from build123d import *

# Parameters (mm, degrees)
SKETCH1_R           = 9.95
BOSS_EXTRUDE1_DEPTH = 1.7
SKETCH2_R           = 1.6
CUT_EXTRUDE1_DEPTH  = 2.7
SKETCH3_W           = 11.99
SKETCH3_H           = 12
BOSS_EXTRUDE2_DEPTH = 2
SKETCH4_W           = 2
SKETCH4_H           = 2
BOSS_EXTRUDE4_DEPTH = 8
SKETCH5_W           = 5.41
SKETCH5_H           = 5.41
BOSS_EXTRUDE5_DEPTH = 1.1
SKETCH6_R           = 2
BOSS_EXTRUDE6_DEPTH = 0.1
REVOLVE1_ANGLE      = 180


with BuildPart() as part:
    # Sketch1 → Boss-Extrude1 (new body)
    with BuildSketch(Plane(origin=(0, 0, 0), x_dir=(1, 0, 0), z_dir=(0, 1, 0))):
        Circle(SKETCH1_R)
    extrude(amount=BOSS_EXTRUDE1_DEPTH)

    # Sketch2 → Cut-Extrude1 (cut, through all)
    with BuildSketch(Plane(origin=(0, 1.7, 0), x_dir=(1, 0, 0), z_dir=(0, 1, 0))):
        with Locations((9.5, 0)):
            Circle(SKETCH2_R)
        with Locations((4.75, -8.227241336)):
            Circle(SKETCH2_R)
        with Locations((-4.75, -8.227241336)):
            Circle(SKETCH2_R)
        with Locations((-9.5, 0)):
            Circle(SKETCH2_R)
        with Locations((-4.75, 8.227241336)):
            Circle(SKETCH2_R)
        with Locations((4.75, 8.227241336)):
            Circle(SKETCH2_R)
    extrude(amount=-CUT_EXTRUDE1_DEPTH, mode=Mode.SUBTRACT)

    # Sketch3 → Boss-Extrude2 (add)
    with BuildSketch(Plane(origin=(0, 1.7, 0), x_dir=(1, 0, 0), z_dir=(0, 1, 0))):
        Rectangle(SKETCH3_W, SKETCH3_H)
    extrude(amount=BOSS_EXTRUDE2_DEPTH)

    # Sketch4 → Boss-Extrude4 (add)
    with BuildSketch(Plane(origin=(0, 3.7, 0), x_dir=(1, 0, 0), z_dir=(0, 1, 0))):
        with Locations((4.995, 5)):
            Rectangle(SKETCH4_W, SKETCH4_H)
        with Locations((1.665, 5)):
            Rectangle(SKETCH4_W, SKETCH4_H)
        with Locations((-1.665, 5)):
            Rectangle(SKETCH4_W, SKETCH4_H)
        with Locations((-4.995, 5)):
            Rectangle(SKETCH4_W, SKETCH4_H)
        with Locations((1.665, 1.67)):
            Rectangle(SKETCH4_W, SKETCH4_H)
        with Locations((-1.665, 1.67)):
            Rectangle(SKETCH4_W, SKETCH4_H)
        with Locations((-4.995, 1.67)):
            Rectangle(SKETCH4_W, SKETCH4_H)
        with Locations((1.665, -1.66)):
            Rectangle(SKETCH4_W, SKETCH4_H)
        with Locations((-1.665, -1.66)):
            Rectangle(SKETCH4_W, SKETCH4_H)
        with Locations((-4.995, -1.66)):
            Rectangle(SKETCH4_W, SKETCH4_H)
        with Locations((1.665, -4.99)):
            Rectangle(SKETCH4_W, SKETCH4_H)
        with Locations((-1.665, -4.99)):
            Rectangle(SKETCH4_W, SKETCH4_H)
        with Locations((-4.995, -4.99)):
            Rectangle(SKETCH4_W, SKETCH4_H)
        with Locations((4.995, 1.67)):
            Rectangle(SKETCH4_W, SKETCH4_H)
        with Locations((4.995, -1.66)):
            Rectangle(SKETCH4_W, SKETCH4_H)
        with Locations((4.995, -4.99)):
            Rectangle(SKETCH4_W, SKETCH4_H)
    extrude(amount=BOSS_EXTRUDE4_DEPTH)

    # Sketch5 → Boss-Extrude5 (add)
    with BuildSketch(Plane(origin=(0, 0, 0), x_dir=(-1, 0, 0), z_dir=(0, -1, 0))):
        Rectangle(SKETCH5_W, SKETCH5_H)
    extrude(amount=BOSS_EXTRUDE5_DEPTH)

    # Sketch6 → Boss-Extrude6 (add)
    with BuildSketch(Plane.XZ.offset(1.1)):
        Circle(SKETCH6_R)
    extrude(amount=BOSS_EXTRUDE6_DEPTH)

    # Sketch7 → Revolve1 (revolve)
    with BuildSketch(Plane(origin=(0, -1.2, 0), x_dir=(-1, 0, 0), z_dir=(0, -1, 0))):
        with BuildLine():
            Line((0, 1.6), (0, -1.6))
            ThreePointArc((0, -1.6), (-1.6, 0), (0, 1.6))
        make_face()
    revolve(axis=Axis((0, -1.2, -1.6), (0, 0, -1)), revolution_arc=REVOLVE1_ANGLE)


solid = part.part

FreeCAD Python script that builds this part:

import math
import FreeCAD as App
import Part
import Sketcher
Q = App.Units.Quantity

doc = App.newDocument("Part")
body = doc.addObject("PartDesign::Body", "Body")

# Sketch on XZ plane
sketch1 = doc.addObject("Sketcher::SketchObject", "Sketch")
body.addObject(sketch1)
sketch1.AttachmentSupport = (doc.XZ_Plane, [""])
sketch1.MapMode = "FlatFace"
sketch1.addGeometry(Part.Circle(App.Vector(0, 0, 0), App.Vector(0, 0, 1), 9.95), False)
sketch1.addConstraint([
    Sketcher.Constraint("Coincident", 0, 3, -1, 1),
    Sketcher.Constraint("Diameter", 0, Q("19.9 mm")),
])
pad1 = doc.addObject("PartDesign::Pad", "Pad")
body.addObject(pad1)
pad1.Profile = sketch1
pad1.Length = 1.7
pad1.Reversed = True

# Sketch on XZ plane
sketch2 = doc.addObject("Sketcher::SketchObject", "Sketch001")
body.addObject(sketch2)
sketch2.AttachmentSupport = (doc.XZ_Plane, [""])
sketch2.MapMode = "FlatFace"
sketch2.AttachmentOffset = App.Placement(App.Vector(0, 0, -1.7), App.Rotation())
sketch2.addGeometry([
    Part.Circle(App.Vector(9.5, 0, 0), App.Vector(0, 0, 1), 1.6),  # 0
    Part.Circle(App.Vector(4.75, 8.227241, 0), App.Vector(0, 0, 1), 1.6),  # 1
    Part.Circle(App.Vector(-4.75, 8.227241, 0), App.Vector(0, 0, 1), 1.6),  # 2
    Part.Circle(App.Vector(-9.5, 0, 0), App.Vector(0, 0, 1), 1.6),  # 3
    Part.Circle(App.Vector(-4.75, -8.227241, 0), App.Vector(0, 0, 1), 1.6),  # 4
    Part.Circle(App.Vector(4.75, -8.227241, 0), App.Vector(0, 0, 1), 1.6),  # 5
], False)
sketch2.addConstraint([
    Sketcher.Constraint("Equal", 0, 1),
    Sketcher.Constraint("Equal", 1, 2),
    Sketcher.Constraint("Equal", 2, 3),
    Sketcher.Constraint("Equal", 3, 4),
    Sketcher.Constraint("Equal", 4, 5),
    Sketcher.Constraint("Symmetric", 0, 3, 3, 3, -1, 1),
    Sketcher.Constraint("Symmetric", 1, 3, 4, 3, -1, 1),
    Sketcher.Constraint("Symmetric", 2, 3, 5, 3, -1, 1),
    Sketcher.Constraint("Symmetric", 1, 3, 2, 3, -2),
    Sketcher.Constraint("PointOnObject", 0, 3, -1),
    Sketcher.Constraint("Diameter", 0, Q("3.2 mm")),
    Sketcher.Constraint("DistanceX", 3, 3, 0, 3, Q("19 mm")),
    Sketcher.Constraint("DistanceX", 2, 3, 1, 3, Q("9.5 mm")),
    Sketcher.Constraint("DistanceY", -1, 1, 1, 3, Q("8.227241 mm")),
])
pocket1 = doc.addObject("PartDesign::Pocket", "Pocket")
body.addObject(pocket1)
pocket1.Profile = sketch2
pocket1.Type = "ThroughAll"
pocket1.Reversed = True

# Sketch on XZ plane
sketch3 = doc.addObject("Sketcher::SketchObject", "Sketch002")
body.addObject(sketch3)
sketch3.AttachmentSupport = (doc.XZ_Plane, [""])
sketch3.MapMode = "FlatFace"
sketch3.AttachmentOffset = App.Placement(App.Vector(0, 0, -1.7), App.Rotation())
sketch3.addGeometry([
    Part.LineSegment(App.Vector(-5.995, -6, 0), App.Vector(-5.995, 6, 0)),
    Part.LineSegment(App.Vector(-5.995, 6, 0), App.Vector(5.995, 6, 0)),
    Part.LineSegment(App.Vector(5.995, 6, 0), App.Vector(5.995, -6, 0)),
    Part.LineSegment(App.Vector(5.995, -6, 0), App.Vector(-5.995, -6, 0)),
], False)
sketch3.addConstraint([
    Sketcher.Constraint("Coincident", 0, 2, 1, 1),
    Sketcher.Constraint("Coincident", 1, 2, 2, 1),
    Sketcher.Constraint("Coincident", 2, 2, 3, 1),
    Sketcher.Constraint("Coincident", 3, 2, 0, 1),
    Sketcher.Constraint("Vertical", 0),
    Sketcher.Constraint("Horizontal", 1),
    Sketcher.Constraint("Vertical", 2),
    Sketcher.Constraint("Horizontal", 3),
    Sketcher.Constraint("Symmetric", 0, 2, 2, 2, -1, 1),
    Sketcher.Constraint("DistanceY", 0, 1, 0, 2, Q("12 mm")),
    Sketcher.Constraint("DistanceX", 1, 1, 1, 2, Q("11.99 mm")),
])
pad2 = doc.addObject("PartDesign::Pad", "Pad001")
body.addObject(pad2)
pad2.Profile = sketch3
pad2.Length = 2
pad2.Reversed = True

# Sketch on XZ plane
sketch4 = doc.addObject("Sketcher::SketchObject", "Sketch003")
body.addObject(sketch4)
sketch4.AttachmentSupport = (doc.XZ_Plane, [""])
sketch4.MapMode = "FlatFace"
sketch4.AttachmentOffset = App.Placement(App.Vector(0, 0, -3.7), App.Rotation())
sketch4.addGeometry([
    Part.LineSegment(App.Vector(3.995, -6, 0), App.Vector(3.995, -4, 0)),  # 0
    Part.LineSegment(App.Vector(3.995, -4, 0), App.Vector(5.995, -4, 0)),  # 1
    Part.LineSegment(App.Vector(5.995, -4, 0), App.Vector(5.995, -6, 0)),  # 2
    Part.LineSegment(App.Vector(5.995, -6, 0), App.Vector(3.995, -6, 0)),  # 3
    Part.LineSegment(App.Vector(0.665, -6, 0), App.Vector(0.665, -4, 0)),  # 4
    Part.LineSegment(App.Vector(0.665, -4, 0), App.Vector(2.665, -4, 0)),  # 5
    Part.LineSegment(App.Vector(2.665, -4, 0), App.Vector(2.665, -6, 0)),  # 6
    Part.LineSegment(App.Vector(2.665, -6, 0), App.Vector(0.665, -6, 0)),  # 7
    Part.LineSegment(App.Vector(-2.665, -6, 0), App.Vector(-2.665, -4, 0)),  # 8
    Part.LineSegment(App.Vector(-2.665, -4, 0), App.Vector(-0.665, -4, 0)),  # 9
    Part.LineSegment(App.Vector(-0.665, -4, 0), App.Vector(-0.665, -6, 0)),  # 10
    Part.LineSegment(App.Vector(-0.665, -6, 0), App.Vector(-2.665, -6, 0)),  # 11
    Part.LineSegment(App.Vector(-5.995, -6, 0), App.Vector(-5.995, -4, 0)),  # 12
    Part.LineSegment(App.Vector(-5.995, -4, 0), App.Vector(-3.995, -4, 0)),  # 13
    Part.LineSegment(App.Vector(-3.995, -4, 0), App.Vector(-3.995, -6, 0)),  # 14
    Part.LineSegment(App.Vector(-3.995, -6, 0), App.Vector(-5.995, -6, 0)),  # 15
    Part.LineSegment(App.Vector(0.665, -2.67, 0), App.Vector(0.665, -0.67, 0)),  # 16
    Part.LineSegment(App.Vector(0.665, -0.67, 0), App.Vector(2.665, -0.67, 0)),  # 17
    Part.LineSegment(App.Vector(2.665, -0.67, 0), App.Vector(2.665, -2.67, 0)),  # 18
    Part.LineSegment(App.Vector(2.665, -2.67, 0), App.Vector(0.665, -2.67, 0)),  # 19
    Part.LineSegment(App.Vector(-2.665, -2.67, 0), App.Vector(-2.665, -0.67, 0)),  # 20
    Part.LineSegment(App.Vector(-2.665, -0.67, 0), App.Vector(-0.665, -0.67, 0)),  # 21
    Part.LineSegment(App.Vector(-0.665, -0.67, 0), App.Vector(-0.665, -2.67, 0)),  # 22
    Part.LineSegment(App.Vector(-0.665, -2.67, 0), App.Vector(-2.665, -2.67, 0)),  # 23
    Part.LineSegment(App.Vector(-5.995, -2.67, 0), App.Vector(-5.995, -0.67, 0)),  # 24
    Part.LineSegment(App.Vector(-5.995, -0.67, 0), App.Vector(-3.995, -0.67, 0)),  # 25
    Part.LineSegment(App.Vector(-3.995, -0.67, 0), App.Vector(-3.995, -2.67, 0)),  # 26
    Part.LineSegment(App.Vector(-3.995, -2.67, 0), App.Vector(-5.995, -2.67, 0)),  # 27
    Part.LineSegment(App.Vector(0.665, 0.66, 0), App.Vector(0.665, 2.66, 0)),  # 28
    Part.LineSegment(App.Vector(0.665, 2.66, 0), App.Vector(2.665, 2.66, 0)),  # 29
    Part.LineSegment(App.Vector(2.665, 2.66, 0), App.Vector(2.665, 0.66, 0)),  # 30
    Part.LineSegment(App.Vector(2.665, 0.66, 0), App.Vector(0.665, 0.66, 0)),  # 31
    Part.LineSegment(App.Vector(-2.665, 0.66, 0), App.Vector(-2.665, 2.66, 0)),  # 32
    Part.LineSegment(App.Vector(-2.665, 2.66, 0), App.Vector(-0.665, 2.66, 0)),  # 33
    Part.LineSegment(App.Vector(-0.665, 2.66, 0), App.Vector(-0.665, 0.66, 0)),  # 34
    Part.LineSegment(App.Vector(-0.665, 0.66, 0), App.Vector(-2.665, 0.66, 0)),  # 35
    Part.LineSegment(App.Vector(-5.995, 0.66, 0), App.Vector(-5.995, 2.66, 0)),  # 36
    Part.LineSegment(App.Vector(-5.995, 2.66, 0), App.Vector(-3.995, 2.66, 0)),  # 37
    Part.LineSegment(App.Vector(-3.995, 2.66, 0), App.Vector(-3.995, 0.66, 0)),  # 38
    Part.LineSegment(App.Vector(-3.995, 0.66, 0), App.Vector(-5.995, 0.66, 0)),  # 39
    Part.LineSegment(App.Vector(0.665, 3.99, 0), App.Vector(0.665, 5.99, 0)),  # 40
    Part.LineSegment(App.Vector(0.665, 5.99, 0), App.Vector(2.665, 5.99, 0)),  # 41
    Part.LineSegment(App.Vector(2.665, 5.99, 0), App.Vector(2.665, 3.99, 0)),  # 42
    Part.LineSegment(App.Vector(2.665, 3.99, 0), App.Vector(0.665, 3.99, 0)),  # 43
    Part.LineSegment(App.Vector(-2.665, 3.99, 0), App.Vector(-2.665, 5.99, 0)),  # 44
    Part.LineSegment(App.Vector(-2.665, 5.99, 0), App.Vector(-0.665, 5.99, 0)),  # 45
    Part.LineSegment(App.Vector(-0.665, 5.99, 0), App.Vector(-0.665, 3.99, 0)),  # 46
    Part.LineSegment(App.Vector(-0.665, 3.99, 0), App.Vector(-2.665, 3.99, 0)),  # 47
    Part.LineSegment(App.Vector(-5.995, 3.99, 0), App.Vector(-5.995, 5.99, 0)),  # 48
    Part.LineSegment(App.Vector(-5.995, 5.99, 0), App.Vector(-3.995, 5.99, 0)),  # 49
    Part.LineSegment(App.Vector(-3.995, 5.99, 0), App.Vector(-3.995, 3.99, 0)),  # 50
    Part.LineSegment(App.Vector(-3.995, 3.99, 0), App.Vector(-5.995, 3.99, 0)),  # 51
    Part.LineSegment(App.Vector(3.995, -2.67, 0), App.Vector(3.995, -0.67, 0)),  # 52
    Part.LineSegment(App.Vector(3.995, -0.67, 0), App.Vector(5.995, -0.67, 0)),  # 53
    Part.LineSegment(App.Vector(5.995, -0.67, 0), App.Vector(5.995, -2.67, 0)),  # 54
    Part.LineSegment(App.Vector(5.995, -2.67, 0), App.Vector(3.995, -2.67, 0)),  # 55
    Part.LineSegment(App.Vector(3.995, 0.66, 0), App.Vector(3.995, 2.66, 0)),  # 56
    Part.LineSegment(App.Vector(3.995, 2.66, 0), App.Vector(5.995, 2.66, 0)),  # 57
    Part.LineSegment(App.Vector(5.995, 2.66, 0), App.Vector(5.995, 0.66, 0)),  # 58
    Part.LineSegment(App.Vector(5.995, 0.66, 0), App.Vector(3.995, 0.66, 0)),  # 59
    Part.LineSegment(App.Vector(3.995, 3.99, 0), App.Vector(3.995, 5.99, 0)),  # 60
    Part.LineSegment(App.Vector(3.995, 5.99, 0), App.Vector(5.995, 5.99, 0)),  # 61
    Part.LineSegment(App.Vector(5.995, 5.99, 0), App.Vector(5.995, 3.99, 0)),  # 62
    Part.LineSegment(App.Vector(5.995, 3.99, 0), App.Vector(3.995, 3.99, 0)),  # 63
], False)
sketch4.addConstraint([
    Sketcher.Constraint("Coincident", 0, 2, 1, 1),
    Sketcher.Constraint("Coincident", 1, 2, 2, 1),
    Sketcher.Constraint("Coincident", 2, 2, 3, 1),
    Sketcher.Constraint("Coincident", 3, 2, 0, 1),
    Sketcher.Constraint("Coincident", 4, 2, 5, 1),
    Sketcher.Constraint("Coincident", 5, 2, 6, 1),
    Sketcher.Constraint("Coincident", 6, 2, 7, 1),
    Sketcher.Constraint("Coincident", 7, 2, 4, 1),
    Sketcher.Constraint("Coincident", 8, 2, 9, 1),
    Sketcher.Constraint("Coincident", 9, 2, 10, 1),
    Sketcher.Constraint("Coincident", 10, 2, 11, 1),
    Sketcher.Constraint("Coincident", 11, 2, 8, 1),
    Sketcher.Constraint("Coincident", 12, 2, 13, 1),
    Sketcher.Constraint("Coincident", 13, 2, 14, 1),
    Sketcher.Constraint("Coincident", 14, 2, 15, 1),
    Sketcher.Constraint("Coincident", 15, 2, 12, 1),
    Sketcher.Constraint("Coincident", 16, 2, 17, 1),
    Sketcher.Constraint("Coincident", 17, 2, 18, 1),
    Sketcher.Constraint("Coincident", 18, 2, 19, 1),
    Sketcher.Constraint("Coincident", 19, 2, 16, 1),
    Sketcher.Constraint("Coincident", 20, 2, 21, 1),
    Sketcher.Constraint("Coincident", 21, 2, 22, 1),
    Sketcher.Constraint("Coincident", 22, 2, 23, 1),
    Sketcher.Constraint("Coincident", 23, 2, 20, 1),
    Sketcher.Constraint("Coincident", 24, 2, 25, 1),
    Sketcher.Constraint("Coincident", 25, 2, 26, 1),
    Sketcher.Constraint("Coincident", 26, 2, 27, 1),
    Sketcher.Constraint("Coincident", 27, 2, 24, 1),
    Sketcher.Constraint("Coincident", 28, 2, 29, 1),
    Sketcher.Constraint("Coincident", 29, 2, 30, 1),
    Sketcher.Constraint("Coincident", 30, 2, 31, 1),
    Sketcher.Constraint("Coincident", 31, 2, 28, 1),
    Sketcher.Constraint("Coincident", 32, 2, 33, 1),
    Sketcher.Constraint("Coincident", 33, 2, 34, 1),
    Sketcher.Constraint("Coincident", 34, 2, 35, 1),
    Sketcher.Constraint("Coincident", 35, 2, 32, 1),
    Sketcher.Constraint("Coincident", 36, 2, 37, 1),
    Sketcher.Constraint("Coincident", 37, 2, 38, 1),
    Sketcher.Constraint("Coincident", 38, 2, 39, 1),
    Sketcher.Constraint("Coincident", 39, 2, 36, 1),
    Sketcher.Constraint("Coincident", 40, 2, 41, 1),
    Sketcher.Constraint("Coincident", 41, 2, 42, 1),
    Sketcher.Constraint("Coincident", 42, 2, 43, 1),
    Sketcher.Constraint("Coincident", 43, 2, 40, 1),
    Sketcher.Constraint("Coincident", 44, 2, 45, 1),
    Sketcher.Constraint("Coincident", 45, 2, 46, 1),
    Sketcher.Constraint("Coincident", 46, 2, 47, 1),
    Sketcher.Constraint("Coincident", 47, 2, 44, 1),
    Sketcher.Constraint("Coincident", 48, 2, 49, 1),
    Sketcher.Constraint("Coincident", 49, 2, 50, 1),
    Sketcher.Constraint("Coincident", 50, 2, 51, 1),
    Sketcher.Constraint("Coincident", 51, 2, 48, 1),
    Sketcher.Constraint("Coincident", 52, 2, 53, 1),
    Sketcher.Constraint("Coincident", 53, 2, 54, 1),
    Sketcher.Constraint("Coincident", 54, 2, 55, 1),
    Sketcher.Constraint("Coincident", 55, 2, 52, 1),
    Sketcher.Constraint("Coincident", 56, 2, 57, 1),
    Sketcher.Constraint("Coincident", 57, 2, 58, 1),
    Sketcher.Constraint("Coincident", 58, 2, 59, 1),
    Sketcher.Constraint("Coincident", 59, 2, 56, 1),
    Sketcher.Constraint("Coincident", 60, 2, 61, 1),
    Sketcher.Constraint("Coincident", 61, 2, 62, 1),
    Sketcher.Constraint("Coincident", 62, 2, 63, 1),
    Sketcher.Constraint("Coincident", 63, 2, 60, 1),
    Sketcher.Constraint("Vertical", 0),
    Sketcher.Constraint("Horizontal", 1),
    Sketcher.Constraint("Vertical", 2),
    Sketcher.Constraint("Horizontal", 3),
    Sketcher.Constraint("Vertical", 4),
    Sketcher.Constraint("Horizontal", 5),
    Sketcher.Constraint("Vertical", 6),
    Sketcher.Constraint("Horizontal", 7),
    Sketcher.Constraint("Vertical", 8),
    Sketcher.Constraint("Horizontal", 9),
    Sketcher.Constraint("Vertical", 10),
    Sketcher.Constraint("Horizontal", 11),
    Sketcher.Constraint("Vertical", 12),
    Sketcher.Constraint("Horizontal", 13),
    Sketcher.Constraint("Vertical", 14),
    Sketcher.Constraint("Horizontal", 15),
    Sketcher.Constraint("Vertical", 16),
    Sketcher.Constraint("Horizontal", 17),
    Sketcher.Constraint("Vertical", 18),
    Sketcher.Constraint("Horizontal", 19),
    Sketcher.Constraint("Vertical", 20),
    Sketcher.Constraint("Horizontal", 21),
    Sketcher.Constraint("Vertical", 22),
    Sketcher.Constraint("Horizontal", 23),
    Sketcher.Constraint("Vertical", 24),
    Sketcher.Constraint("Horizontal", 25),
    Sketcher.Constraint("Vertical", 26),
    Sketcher.Constraint("Horizontal", 27),
    Sketcher.Constraint("Vertical", 28),
    Sketcher.Constraint("Horizontal", 29),
    Sketcher.Constraint("Vertical", 30),
    Sketcher.Constraint("Horizontal", 31),
    Sketcher.Constraint("Vertical", 32),
    Sketcher.Constraint("Horizontal", 33),
    Sketcher.Constraint("Vertical", 34),
    Sketcher.Constraint("Horizontal", 35),
    Sketcher.Constraint("Vertical", 36),
    Sketcher.Constraint("Horizontal", 37),
    Sketcher.Constraint("Vertical", 38),
    Sketcher.Constraint("Horizontal", 39),
    Sketcher.Constraint("Vertical", 40),
    Sketcher.Constraint("Horizontal", 41),
    Sketcher.Constraint("Vertical", 42),
    Sketcher.Constraint("Horizontal", 43),
    Sketcher.Constraint("Vertical", 44),
    Sketcher.Constraint("Horizontal", 45),
    Sketcher.Constraint("Vertical", 46),
    Sketcher.Constraint("Horizontal", 47),
    Sketcher.Constraint("Vertical", 48),
    Sketcher.Constraint("Horizontal", 49),
    Sketcher.Constraint("Vertical", 50),
    Sketcher.Constraint("Horizontal", 51),
    Sketcher.Constraint("Vertical", 52),
    Sketcher.Constraint("Horizontal", 53),
    Sketcher.Constraint("Vertical", 54),
    Sketcher.Constraint("Horizontal", 55),
    Sketcher.Constraint("Vertical", 56),
    Sketcher.Constraint("Horizontal", 57),
    Sketcher.Constraint("Vertical", 58),
    Sketcher.Constraint("Horizontal", 59),
    Sketcher.Constraint("Vertical", 60),
    Sketcher.Constraint("Horizontal", 61),
    Sketcher.Constraint("Vertical", 62),
    Sketcher.Constraint("Horizontal", 63),
    Sketcher.Constraint("Symmetric", 5, 2, 8, 2, -2),
    Sketcher.Constraint("Symmetric", 7, 2, 10, 2, -2),
    Sketcher.Constraint("Symmetric", 1, 2, 12, 2, -2),
    Sketcher.Constraint("Symmetric", 3, 2, 14, 2, -2),
    Sketcher.Constraint("Symmetric", 17, 2, 20, 2, -2),
    Sketcher.Constraint("Symmetric", 19, 2, 22, 2, -2),
    Sketcher.Constraint("Symmetric", 29, 2, 32, 2, -2),
    Sketcher.Constraint("Symmetric", 31, 2, 34, 2, -2),
    Sketcher.Constraint("Symmetric", 41, 2, 44, 2, -2),
    Sketcher.Constraint("Symmetric", 43, 2, 46, 2, -2),
    Sketcher.Constraint("Symmetric", 25, 2, 52, 2, -2),
    Sketcher.Constraint("Symmetric", 27, 2, 54, 2, -2),
    Sketcher.Constraint("Symmetric", 37, 2, 56, 2, -2),
    Sketcher.Constraint("Symmetric", 39, 2, 58, 2, -2),
    Sketcher.Constraint("Symmetric", 49, 2, 60, 2, -2),
    Sketcher.Constraint("Symmetric", 51, 2, 62, 2, -2),
    Sketcher.Constraint("Horizontal", 1, 2, 4, 2),
    Sketcher.Constraint("Horizontal", 3, 2, 6, 2),
    Sketcher.Constraint("Horizontal", 21, 2, 24, 2),
    Sketcher.Constraint("Horizontal", 23, 2, 26, 2),
    Sketcher.Constraint("Horizontal", 33, 2, 36, 2),
    Sketcher.Constraint("Horizontal", 35, 2, 38, 2),
    Sketcher.Constraint("Horizontal", 45, 2, 48, 2),
    Sketcher.Constraint("Horizontal", 47, 2, 50, 2),
    Sketcher.Constraint("Vertical", 7, 2, 16, 2),
    Sketcher.Constraint("Vertical", 6, 2, 17, 2),
    Sketcher.Constraint("Vertical", 15, 2, 24, 2),
    Sketcher.Constraint("Vertical", 14, 2, 25, 2),
    Sketcher.Constraint("Vertical", 19, 2, 28, 2),
    Sketcher.Constraint("Vertical", 18, 2, 29, 2),
    Sketcher.Constraint("Vertical", 27, 2, 36, 2),
    Sketcher.Constraint("Vertical", 26, 2, 37, 2),
    Sketcher.Constraint("Vertical", 31, 2, 40, 2),
    Sketcher.Constraint("Vertical", 30, 2, 41, 2),
    Sketcher.Constraint("Vertical", 39, 2, 48, 2),
    Sketcher.Constraint("Vertical", 38, 2, 49, 2),
    Sketcher.Constraint("Equal", 3, 5),
    Sketcher.Constraint("Equal", 63, 0),
    Sketcher.Constraint("Equal", 14, 16),
    Sketcher.Constraint("Equal", 26, 28),
    Sketcher.Constraint("Equal", 38, 40),
    Sketcher.Constraint("DistanceX", 1, 1, 1, 2, Q("2 mm")),
    Sketcher.Constraint("DistanceY", 0, 2, -1, 1, Q("4 mm")),
    Sketcher.Constraint("DistanceY", 16, 2, -1, 1, Q("0.67 mm")),
    Sketcher.Constraint("DistanceY", -1, 1, 28, 2, Q("2.66 mm")),
    Sketcher.Constraint("DistanceY", -1, 1, 40, 2, Q("5.99 mm")),
    Sketcher.Constraint("DistanceX", -1, 1, 0, 2, Q("3.995 mm")),
    Sketcher.Constraint("DistanceX", -1, 1, 4, 2, Q("0.665 mm")),
])
pad3 = doc.addObject("PartDesign::Pad", "Pad002")
body.addObject(pad3)
pad3.Profile = sketch4
pad3.Length = 8
pad3.Reversed = True

# Sketch on XZ plane
sketch5 = doc.addObject("Sketcher::SketchObject", "Sketch004")
body.addObject(sketch5)
sketch5.AttachmentSupport = (doc.XZ_Plane, [""])
sketch5.MapMode = "FlatFace"
sketch5.addGeometry([
    Part.LineSegment(App.Vector(2.705, -2.705, 0), App.Vector(2.705, 2.705, 0)),
    Part.LineSegment(App.Vector(2.705, 2.705, 0), App.Vector(-2.705, 2.705, 0)),
    Part.LineSegment(App.Vector(-2.705, 2.705, 0), App.Vector(-2.705, -2.705, 0)),
    Part.LineSegment(App.Vector(-2.705, -2.705, 0), App.Vector(2.705, -2.705, 0)),
], False)
sketch5.addConstraint([
    Sketcher.Constraint("Coincident", 0, 2, 1, 1),
    Sketcher.Constraint("Coincident", 1, 2, 2, 1),
    Sketcher.Constraint("Coincident", 2, 2, 3, 1),
    Sketcher.Constraint("Coincident", 3, 2, 0, 1),
    Sketcher.Constraint("Vertical", 0),
    Sketcher.Constraint("Horizontal", 1),
    Sketcher.Constraint("Vertical", 2),
    Sketcher.Constraint("Horizontal", 3),
    Sketcher.Constraint("Symmetric", 0, 2, 2, 2, -1, 1),
    Sketcher.Constraint("Equal", 3, 0),
    Sketcher.Constraint("DistanceX", 1, 2, 1, 1, Q("5.41 mm")),
])
pad4 = doc.addObject("PartDesign::Pad", "Pad003")
body.addObject(pad4)
pad4.Profile = sketch5
pad4.Length = 1.1

# Sketch on XZ plane
sketch6 = doc.addObject("Sketcher::SketchObject", "Sketch005")
body.addObject(sketch6)
sketch6.AttachmentSupport = (doc.XZ_Plane, [""])
sketch6.MapMode = "FlatFace"
sketch6.AttachmentOffset = App.Placement(App.Vector(0, 0, 1.1), App.Rotation())
sketch6.addGeometry(Part.Circle(App.Vector(0, 0, 0), App.Vector(0, 0, 1), 2), False)
sketch6.addConstraint([
    Sketcher.Constraint("Coincident", 0, 3, -1, 1),
    Sketcher.Constraint("Diameter", 0, Q("4 mm")),
])
pad5 = doc.addObject("PartDesign::Pad", "Pad004")
body.addObject(pad5)
pad5.Profile = sketch6
pad5.Length = 0.1

# Sketch on XZ plane
sketch7 = doc.addObject("Sketcher::SketchObject", "Sketch006")
body.addObject(sketch7)
sketch7.AttachmentSupport = (doc.XZ_Plane, [""])
sketch7.MapMode = "FlatFace"
sketch7.AttachmentOffset = App.Placement(App.Vector(0, 0, 1.2), App.Rotation())
sketch7.addGeometry([
    Part.LineSegment(App.Vector(0, 1.6, 0), App.Vector(0, -1.6, 0)),
    Part.ArcOfCircle(Part.Circle(App.Vector(0, 0, 0), App.Vector(0, 0, 1), 1.6), math.radians(-90), math.radians(90)),
], False)
sketch7.addConstraint([
    Sketcher.Constraint("Coincident", 0, 1, 1, 2),
    Sketcher.Constraint("Coincident", 1, 1, 0, 2),
    Sketcher.Constraint("Vertical", 0),
    Sketcher.Constraint("Coincident", 1, 3, -1, 1),
    Sketcher.Constraint("PointOnObject", 0, 1, -2),
    Sketcher.Constraint("Radius", 1, Q("1.6 mm")),
])
revolution = doc.addObject("PartDesign::Revolution", "Revolution")
body.addObject(revolution)
revolution.Profile = sketch7
revolution.ReferenceAxis = (sketch7, ["V_Axis"])
revolution.Angle = 180
revolution.Reversed = True

doc.recompute()
